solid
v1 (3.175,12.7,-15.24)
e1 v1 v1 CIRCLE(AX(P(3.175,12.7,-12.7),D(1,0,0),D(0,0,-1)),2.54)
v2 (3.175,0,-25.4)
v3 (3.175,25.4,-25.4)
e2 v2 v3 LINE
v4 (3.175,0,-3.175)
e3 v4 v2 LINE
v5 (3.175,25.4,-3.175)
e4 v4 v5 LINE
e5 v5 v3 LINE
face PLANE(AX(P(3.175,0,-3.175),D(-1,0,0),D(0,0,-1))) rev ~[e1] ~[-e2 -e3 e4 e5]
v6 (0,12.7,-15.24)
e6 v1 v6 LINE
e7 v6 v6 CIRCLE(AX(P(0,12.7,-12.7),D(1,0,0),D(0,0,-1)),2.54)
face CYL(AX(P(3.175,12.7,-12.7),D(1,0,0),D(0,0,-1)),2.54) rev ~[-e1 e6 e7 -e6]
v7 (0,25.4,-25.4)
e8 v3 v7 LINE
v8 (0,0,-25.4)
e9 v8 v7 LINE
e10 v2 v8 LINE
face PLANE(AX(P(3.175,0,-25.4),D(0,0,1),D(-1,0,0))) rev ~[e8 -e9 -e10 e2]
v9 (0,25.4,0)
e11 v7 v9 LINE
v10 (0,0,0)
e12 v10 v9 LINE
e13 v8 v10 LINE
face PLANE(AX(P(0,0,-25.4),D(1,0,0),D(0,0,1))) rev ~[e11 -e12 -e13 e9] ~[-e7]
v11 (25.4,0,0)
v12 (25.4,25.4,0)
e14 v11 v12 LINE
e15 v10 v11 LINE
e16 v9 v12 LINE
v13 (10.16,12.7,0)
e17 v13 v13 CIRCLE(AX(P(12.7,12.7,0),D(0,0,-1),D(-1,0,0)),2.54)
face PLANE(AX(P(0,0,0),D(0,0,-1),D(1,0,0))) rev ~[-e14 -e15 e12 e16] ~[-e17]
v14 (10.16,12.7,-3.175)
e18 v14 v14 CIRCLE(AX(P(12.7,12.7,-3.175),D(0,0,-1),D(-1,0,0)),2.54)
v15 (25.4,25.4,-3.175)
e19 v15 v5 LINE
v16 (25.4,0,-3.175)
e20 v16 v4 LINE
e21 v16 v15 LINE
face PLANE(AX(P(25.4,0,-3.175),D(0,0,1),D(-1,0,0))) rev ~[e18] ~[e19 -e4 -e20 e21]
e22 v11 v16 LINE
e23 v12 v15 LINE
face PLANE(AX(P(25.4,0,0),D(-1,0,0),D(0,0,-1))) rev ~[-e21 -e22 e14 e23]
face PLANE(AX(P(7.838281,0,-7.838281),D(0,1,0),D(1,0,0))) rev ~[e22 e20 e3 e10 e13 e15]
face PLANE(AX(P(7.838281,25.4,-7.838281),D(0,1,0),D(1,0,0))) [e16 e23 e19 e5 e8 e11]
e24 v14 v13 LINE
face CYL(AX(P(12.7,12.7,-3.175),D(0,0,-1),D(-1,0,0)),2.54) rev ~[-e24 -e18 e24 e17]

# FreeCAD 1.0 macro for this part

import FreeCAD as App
import Part
import Sketcher

V = App.Vector
Q = App.Units.Quantity

doc = App.newDocument("Part")
body = doc.addObject("PartDesign::Body", "Body")

# Sketch on XZ plane
sketch1 = body.newObject("Sketcher::SketchObject", "Sketch")
sketch1.AttachmentSupport = (doc.getObject("XZ_Plane"), [""])
sketch1.MapMode = "FlatFace"
sketch1.addGeometry([
    Part.LineSegment(V(0, 0, 0), V(25.4, 0, 0)),  # 0
    Part.LineSegment(V(25.4, 0, 0), V(25.4, -3.2, 0)),  # 1
    Part.LineSegment(V(25.4, -3.2, 0), V(3.2, -3.2, 0)),  # 2
    Part.LineSegment(V(3.2, -3.2, 0), V(3.2, -25.4, 0)),  # 3
    Part.LineSegment(V(3.2, -25.4, 0), V(0, -25.4, 0)),  # 4
    Part.LineSegment(V(0, -25.4, 0), V(0, 0, 0)),  # 5
], False)
sketch1.addConstraint([
    Sketcher.Constraint("Coincident", 0, 2, 1, 1),
    Sketcher.Constraint("Coincident", 1, 2, 2, 1),
    Sketcher.Constraint("Coincident", 2, 2, 3, 1),
    Sketcher.Constraint("Coincident", 3, 2, 4, 1),
    Sketcher.Constraint("Coincident", 4, 2, 5, 1),
    Sketcher.Constraint("Coincident", 5, 2, 0, 1),
    Sketcher.Constraint("Horizontal", 0),
    Sketcher.Constraint("Vertical", 1),
    Sketcher.Constraint("Horizontal", 2),
    Sketcher.Constraint("Vertical", 3),
    Sketcher.Constraint("Horizontal", 4),
    Sketcher.Constraint("Vertical", 5),
    Sketcher.Constraint("Coincident", 5, 2, -1, 1),
    Sketcher.Constraint("Equal", 4, 1),
    Sketcher.Constraint("Equal", 2, 3),
    Sketcher.Constraint("DistanceX", 0, 1, 0, 2, Q("1 in")),
    Sketcher.Constraint("DistanceX", 2, 2, 2, 1, Q("0.875 in")),
])
pad1 = body.newObject("PartDesign::Pad", "Pad")
pad1.Profile = sketch1
pad1.Length = Q("1 in")
pad1.Reversed = True

# Sketch on YZ plane
sketch2 = body.newObject("Sketcher::SketchObject", "Sketch001")
sketch2.AttachmentSupport = (doc.getObject("YZ_Plane"), [""])
sketch2.MapMode = "FlatFace"
sketch2.AttachmentOffset = App.Placement(V(0, 0, 0.125 * 25.4), App.Rotation())
sketch2.addGeometry(Part.Circle(V(12.7, -12.7, 0), V(0, 0, 1), 2.5), False)
sketch2.addConstraint([
    Sketcher.Constraint("Diameter", 0, Q("0.2 in")),
    Sketcher.Constraint("DistanceX", -1, 1, 0, 3, Q("0.5 in")),
    Sketcher.Constraint("DistanceY", 0, 3, -1, 1, Q("0.5 in")),
])
pocket1 = body.newObject("PartDesign::Pocket", "Pocket")
pocket1.Profile = sketch2
pocket1.Length = Q("1 in")

# Sketch on XY plane
sketch3 = body.newObject("Sketcher::SketchObject", "Sketch002")
sketch3.AttachmentSupport = (doc.getObject("XY_Plane"), [""])
sketch3.MapMode = "FlatFace"
sketch3.AttachmentOffset = App.Placement(V(0, 0, -0.125 * 25.4), App.Rotation())
sketch3.addGeometry(Part.Circle(V(12.7, 12.7, 0), V(0, 0, 1), 2.5), False)
sketch3.addConstraint([
    Sketcher.Constraint("Diameter", 0, Q("0.2 in")),
    Sketcher.Constraint("DistanceX", -1, 1, 0, 3, Q("0.5 in")),
    Sketcher.Constraint("DistanceY", -1, 1, 0, 3, Q("0.5 in")),
])
pocket2 = body.newObject("PartDesign::Pocket", "Pocket001")
pocket2.Profile = sketch3
pocket2.Length = Q("1 in")
pocket2.Reversed = True

doc.recompute()
